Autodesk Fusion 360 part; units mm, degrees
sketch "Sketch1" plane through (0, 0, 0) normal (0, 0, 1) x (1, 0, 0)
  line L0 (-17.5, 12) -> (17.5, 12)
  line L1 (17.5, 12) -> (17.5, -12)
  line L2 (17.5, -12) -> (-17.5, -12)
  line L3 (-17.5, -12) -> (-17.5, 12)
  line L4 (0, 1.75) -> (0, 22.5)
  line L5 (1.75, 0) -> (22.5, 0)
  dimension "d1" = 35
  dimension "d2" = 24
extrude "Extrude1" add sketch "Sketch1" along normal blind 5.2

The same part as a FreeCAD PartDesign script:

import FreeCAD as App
import Part
import Sketcher

V = App.Vector
Q = App.Units.Quantity


def add_polygon(sketch, points):
    """Adds a closed chain of lines whose ends are joined by coincident constraints."""
    first, n = sketch.GeometryCount, len(points)
    for a, b in zip(points, points[1:] + points[:1]):
        sketch.addGeometry(Part.LineSegment(App.Vector(*a, 0), App.Vector(*b, 0)), False)
    for i in range(n):
        sketch.addConstraint(Sketcher.Constraint("Coincident", first + i, 2, first + (i + 1) % n, 1))

doc = App.newDocument("Part")
body = doc.addObject("PartDesign::Body", "Body")

# Sketch on XY plane
sketch1 = body.newObject("Sketcher::SketchObject", "Sketch")
sketch1.AttachmentSupport = (doc.getObject("XY_Plane"), [""])
sketch1.MapMode = "FlatFace"
add_polygon(sketch1, [(18, 12), (-18, 12), (-18, -12), (18, -12)])  # lines 0-3
sketch1.addConstraint([
    Sketcher.Constraint("Horizontal", 0),
    Sketcher.Constraint("Vertical", 1),
    Sketcher.Constraint("Horizontal", 2),
    Sketcher.Constraint("Vertical", 3),
    Sketcher.Constraint("Symmetric", 0, 2, 2, 2, -1, 1),
    Sketcher.Constraint("DistanceX", 0, 2, 0, 1, Q("35 mm")),
    Sketcher.Constraint("DistanceY", 1, 2, 1, 1, Q("24 mm")),
])
pad1 = body.newObject("PartDesign::Pad", "Pad")
pad1.Profile = sketch1
pad1.Length = 5.2

doc.recompute()
